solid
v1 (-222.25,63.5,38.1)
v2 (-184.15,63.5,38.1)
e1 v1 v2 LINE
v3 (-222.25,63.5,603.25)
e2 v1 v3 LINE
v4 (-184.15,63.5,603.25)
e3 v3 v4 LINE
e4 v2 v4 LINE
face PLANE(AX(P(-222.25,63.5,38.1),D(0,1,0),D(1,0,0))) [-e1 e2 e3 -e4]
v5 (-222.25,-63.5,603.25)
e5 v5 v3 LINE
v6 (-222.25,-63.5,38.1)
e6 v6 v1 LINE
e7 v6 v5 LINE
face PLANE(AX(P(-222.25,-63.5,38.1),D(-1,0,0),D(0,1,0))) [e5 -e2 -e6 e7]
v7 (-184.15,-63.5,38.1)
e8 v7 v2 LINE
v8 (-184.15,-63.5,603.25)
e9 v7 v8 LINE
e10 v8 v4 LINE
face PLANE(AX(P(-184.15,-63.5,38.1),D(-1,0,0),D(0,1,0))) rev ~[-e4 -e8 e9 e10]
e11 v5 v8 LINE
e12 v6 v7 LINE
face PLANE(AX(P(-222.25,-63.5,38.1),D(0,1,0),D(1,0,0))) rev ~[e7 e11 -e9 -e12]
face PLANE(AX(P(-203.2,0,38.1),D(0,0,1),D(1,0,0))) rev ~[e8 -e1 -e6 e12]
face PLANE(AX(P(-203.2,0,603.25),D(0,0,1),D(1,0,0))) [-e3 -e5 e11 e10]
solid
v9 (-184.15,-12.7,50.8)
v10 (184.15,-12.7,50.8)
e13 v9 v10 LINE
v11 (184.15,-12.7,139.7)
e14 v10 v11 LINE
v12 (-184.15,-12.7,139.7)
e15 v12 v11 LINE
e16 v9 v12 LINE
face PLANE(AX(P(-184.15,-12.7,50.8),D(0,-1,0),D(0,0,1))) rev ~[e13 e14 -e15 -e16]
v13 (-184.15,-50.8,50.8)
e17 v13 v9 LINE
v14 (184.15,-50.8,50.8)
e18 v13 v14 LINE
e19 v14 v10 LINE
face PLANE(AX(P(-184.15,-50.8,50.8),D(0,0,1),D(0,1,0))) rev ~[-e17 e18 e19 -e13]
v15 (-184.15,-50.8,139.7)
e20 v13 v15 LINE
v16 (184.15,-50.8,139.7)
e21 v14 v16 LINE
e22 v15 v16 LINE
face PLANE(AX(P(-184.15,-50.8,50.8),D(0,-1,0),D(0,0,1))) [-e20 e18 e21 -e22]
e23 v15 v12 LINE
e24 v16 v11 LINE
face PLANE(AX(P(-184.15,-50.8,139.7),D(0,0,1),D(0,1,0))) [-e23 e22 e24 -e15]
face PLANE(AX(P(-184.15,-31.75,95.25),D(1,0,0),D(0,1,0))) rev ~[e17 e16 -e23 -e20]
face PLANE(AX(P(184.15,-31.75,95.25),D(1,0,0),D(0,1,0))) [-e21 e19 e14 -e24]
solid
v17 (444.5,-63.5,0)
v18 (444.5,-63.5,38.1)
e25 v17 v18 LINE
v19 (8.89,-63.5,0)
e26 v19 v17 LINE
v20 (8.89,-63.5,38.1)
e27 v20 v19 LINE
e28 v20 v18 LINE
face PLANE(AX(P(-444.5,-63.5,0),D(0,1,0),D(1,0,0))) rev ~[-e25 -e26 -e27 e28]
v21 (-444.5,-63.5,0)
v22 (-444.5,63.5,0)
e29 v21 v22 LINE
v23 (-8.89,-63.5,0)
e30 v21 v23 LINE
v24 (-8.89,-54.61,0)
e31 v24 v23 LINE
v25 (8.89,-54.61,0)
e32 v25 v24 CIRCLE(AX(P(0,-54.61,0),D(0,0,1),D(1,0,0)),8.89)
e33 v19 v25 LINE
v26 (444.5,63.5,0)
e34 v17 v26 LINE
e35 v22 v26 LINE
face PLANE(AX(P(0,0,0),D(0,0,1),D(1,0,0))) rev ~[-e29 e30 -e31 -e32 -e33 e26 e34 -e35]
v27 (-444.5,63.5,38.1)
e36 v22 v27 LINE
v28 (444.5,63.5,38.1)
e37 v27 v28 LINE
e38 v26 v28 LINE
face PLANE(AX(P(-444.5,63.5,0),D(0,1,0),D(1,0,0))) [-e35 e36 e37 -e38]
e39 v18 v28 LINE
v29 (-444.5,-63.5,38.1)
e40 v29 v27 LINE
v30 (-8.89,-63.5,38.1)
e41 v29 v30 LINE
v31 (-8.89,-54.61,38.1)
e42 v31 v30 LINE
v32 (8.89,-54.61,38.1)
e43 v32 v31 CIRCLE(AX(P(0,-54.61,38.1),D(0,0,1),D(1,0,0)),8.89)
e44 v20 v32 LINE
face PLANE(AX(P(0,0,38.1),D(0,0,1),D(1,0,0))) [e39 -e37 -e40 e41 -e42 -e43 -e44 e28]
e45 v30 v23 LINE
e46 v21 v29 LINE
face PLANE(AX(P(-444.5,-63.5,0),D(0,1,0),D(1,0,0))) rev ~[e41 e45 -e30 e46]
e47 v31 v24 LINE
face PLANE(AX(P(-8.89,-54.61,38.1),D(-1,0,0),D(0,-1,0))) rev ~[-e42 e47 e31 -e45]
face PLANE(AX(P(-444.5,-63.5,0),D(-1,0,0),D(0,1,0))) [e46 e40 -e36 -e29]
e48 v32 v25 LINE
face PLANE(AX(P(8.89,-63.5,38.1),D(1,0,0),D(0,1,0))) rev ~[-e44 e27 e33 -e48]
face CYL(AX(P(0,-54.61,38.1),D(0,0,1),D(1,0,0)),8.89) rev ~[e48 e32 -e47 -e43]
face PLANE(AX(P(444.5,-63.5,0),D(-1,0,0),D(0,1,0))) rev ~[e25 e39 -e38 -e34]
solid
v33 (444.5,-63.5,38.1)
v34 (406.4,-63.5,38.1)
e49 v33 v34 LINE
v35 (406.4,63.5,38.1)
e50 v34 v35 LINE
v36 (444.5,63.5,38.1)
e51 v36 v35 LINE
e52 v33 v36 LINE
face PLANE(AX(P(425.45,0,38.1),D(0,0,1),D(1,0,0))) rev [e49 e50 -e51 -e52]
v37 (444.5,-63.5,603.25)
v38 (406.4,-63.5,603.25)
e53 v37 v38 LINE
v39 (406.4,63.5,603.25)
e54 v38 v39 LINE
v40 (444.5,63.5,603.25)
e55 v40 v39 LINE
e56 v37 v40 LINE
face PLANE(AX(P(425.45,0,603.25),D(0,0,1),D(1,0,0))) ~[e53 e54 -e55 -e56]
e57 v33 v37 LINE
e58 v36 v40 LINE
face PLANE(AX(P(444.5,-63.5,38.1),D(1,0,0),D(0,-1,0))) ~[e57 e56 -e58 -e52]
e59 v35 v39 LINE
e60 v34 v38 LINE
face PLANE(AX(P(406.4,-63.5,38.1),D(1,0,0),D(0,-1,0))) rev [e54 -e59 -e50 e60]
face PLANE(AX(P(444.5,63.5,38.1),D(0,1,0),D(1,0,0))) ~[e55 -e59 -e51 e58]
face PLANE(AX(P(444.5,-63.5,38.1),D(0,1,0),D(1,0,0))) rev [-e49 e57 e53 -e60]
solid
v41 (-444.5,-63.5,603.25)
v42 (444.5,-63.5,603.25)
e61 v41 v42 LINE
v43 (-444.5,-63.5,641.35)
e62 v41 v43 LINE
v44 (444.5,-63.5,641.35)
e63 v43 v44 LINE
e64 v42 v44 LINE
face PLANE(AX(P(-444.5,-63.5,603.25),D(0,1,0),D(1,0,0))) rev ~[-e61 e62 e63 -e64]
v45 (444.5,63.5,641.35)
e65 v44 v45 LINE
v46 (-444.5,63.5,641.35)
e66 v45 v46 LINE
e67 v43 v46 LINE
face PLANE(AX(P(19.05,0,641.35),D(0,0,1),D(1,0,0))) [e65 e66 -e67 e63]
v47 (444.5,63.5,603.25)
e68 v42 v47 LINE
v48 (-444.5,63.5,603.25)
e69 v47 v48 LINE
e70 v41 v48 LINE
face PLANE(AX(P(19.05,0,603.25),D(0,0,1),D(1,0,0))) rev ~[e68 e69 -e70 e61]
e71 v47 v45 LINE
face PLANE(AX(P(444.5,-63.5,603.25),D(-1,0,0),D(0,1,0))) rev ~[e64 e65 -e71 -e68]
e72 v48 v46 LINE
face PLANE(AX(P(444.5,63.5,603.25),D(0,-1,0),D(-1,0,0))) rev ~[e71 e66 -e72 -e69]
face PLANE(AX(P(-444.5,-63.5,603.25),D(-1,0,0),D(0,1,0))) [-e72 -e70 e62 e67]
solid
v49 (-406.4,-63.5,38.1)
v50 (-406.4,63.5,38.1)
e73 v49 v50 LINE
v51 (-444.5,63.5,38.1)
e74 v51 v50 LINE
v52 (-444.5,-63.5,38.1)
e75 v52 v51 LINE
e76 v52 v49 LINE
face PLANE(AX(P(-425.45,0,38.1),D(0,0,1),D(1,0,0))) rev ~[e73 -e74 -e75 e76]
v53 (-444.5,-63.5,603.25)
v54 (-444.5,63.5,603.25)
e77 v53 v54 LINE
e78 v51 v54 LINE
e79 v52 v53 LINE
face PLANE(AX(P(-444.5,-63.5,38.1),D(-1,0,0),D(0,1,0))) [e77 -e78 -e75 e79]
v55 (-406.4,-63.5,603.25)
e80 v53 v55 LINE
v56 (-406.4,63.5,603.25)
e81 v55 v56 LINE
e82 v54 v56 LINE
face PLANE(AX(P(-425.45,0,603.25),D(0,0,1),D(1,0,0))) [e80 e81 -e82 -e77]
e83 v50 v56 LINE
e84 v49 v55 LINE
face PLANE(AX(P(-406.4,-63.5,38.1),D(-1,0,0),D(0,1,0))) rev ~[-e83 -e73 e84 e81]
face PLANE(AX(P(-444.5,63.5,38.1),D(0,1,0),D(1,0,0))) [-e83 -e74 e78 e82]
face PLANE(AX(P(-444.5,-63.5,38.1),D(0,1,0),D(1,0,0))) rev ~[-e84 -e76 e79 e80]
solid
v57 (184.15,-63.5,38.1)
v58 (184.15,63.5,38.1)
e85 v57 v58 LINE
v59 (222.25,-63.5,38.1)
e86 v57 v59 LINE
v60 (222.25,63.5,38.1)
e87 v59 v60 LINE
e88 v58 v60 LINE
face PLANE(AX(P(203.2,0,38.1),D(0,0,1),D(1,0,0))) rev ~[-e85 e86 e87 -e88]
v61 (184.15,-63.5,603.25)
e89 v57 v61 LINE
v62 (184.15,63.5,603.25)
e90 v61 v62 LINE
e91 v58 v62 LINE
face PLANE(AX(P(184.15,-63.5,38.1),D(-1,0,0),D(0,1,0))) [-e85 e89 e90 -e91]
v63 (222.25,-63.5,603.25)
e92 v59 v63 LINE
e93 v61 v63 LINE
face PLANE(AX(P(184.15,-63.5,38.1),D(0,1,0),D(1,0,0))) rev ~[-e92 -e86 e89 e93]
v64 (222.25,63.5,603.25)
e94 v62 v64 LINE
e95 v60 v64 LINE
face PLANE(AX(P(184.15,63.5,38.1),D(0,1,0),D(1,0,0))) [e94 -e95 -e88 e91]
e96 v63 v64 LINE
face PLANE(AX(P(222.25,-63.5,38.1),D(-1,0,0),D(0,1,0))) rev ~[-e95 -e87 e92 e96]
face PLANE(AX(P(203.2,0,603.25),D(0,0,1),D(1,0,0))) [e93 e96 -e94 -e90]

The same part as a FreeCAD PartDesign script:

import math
import FreeCAD as App
import Part
import Sketcher

V = App.Vector
Q = App.Units.Quantity


def add_polygon(sketch, points):
    """Adds a closed chain of lines whose ends are joined by coincident constraints."""
    first, n = sketch.GeometryCount, len(points)
    for a, b in zip(points, points[1:] + points[:1]):
        sketch.addGeometry(Part.LineSegment(App.Vector(*a, 0), App.Vector(*b, 0)), False)
    for i in range(n):
        sketch.addConstraint(Sketcher.Constraint("Coincident", first + i, 2, first + (i + 1) % n, 1))

doc = App.newDocument("Part")
body = doc.addObject("PartDesign::Body", "Body")

# Sketch on XY plane
sketch1 = body.newObject("Sketcher::SketchObject", "Sketch")
sketch1.AttachmentSupport = (doc.getObject("XY_Plane"), [""])
sketch1.MapMode = "FlatFace"
add_polygon(sketch1, [(-444, 64), (-444, -64), (444, -64), (444, 64)])  # lines 0-3
sketch1.addConstraint([
    Sketcher.Constraint("Vertical", 0),
    Sketcher.Constraint("Horizontal", 1),
    Sketcher.Constraint("Vertical", 2),
    Sketcher.Constraint("Horizontal", 3),
    Sketcher.Constraint("Symmetric", 0, 2, 2, 2, -1, 1),
    Sketcher.Constraint("DistanceX", 1, 1, 1, 2, Q("35 in")),
    Sketcher.Constraint("DistanceY", 0, 2, 0, 1, Q("5 in")),
])
pad1 = body.newObject("PartDesign::Pad", "Pad")
pad1.Profile = sketch1
pad1.Length = Q("1.5 in")

# Sketch on XY plane
sketch2 = body.newObject("Sketcher::SketchObject", "Sketch001")
sketch2.AttachmentSupport = (doc.getObject("XY_Plane"), [""])
sketch2.MapMode = "FlatFace"
sketch2.AttachmentOffset = App.Placement(V(0, 0, 1.5 * 25.4), App.Rotation())
sketch2.addGeometry([
    Part.LineSegment(V(9, -64, 0), V(9, -55, 0)),
    Part.ArcOfCircle(Part.Circle(V(0, -55, 0), V(0, 0, 1), 9), math.radians(0), math.radians(180)),
    Part.LineSegment(V(-9, -55, 0), V(-9, -64, 0)),
    Part.LineSegment(V(-9, -64, 0), V(9, -64, 0)),
], False)
sketch2.addConstraint([
    Sketcher.Constraint("Tangent", 0, 2, 1, 1),
    Sketcher.Constraint("Tangent", 1, 2, 2, 1),
    Sketcher.Constraint("Coincident", 2, 2, 3, 1),
    Sketcher.Constraint("Coincident", 3, 2, 0, 1),
    Sketcher.Constraint("Vertical", 0),
    Sketcher.Constraint("Vertical", 2),
    Sketcher.Constraint("Horizontal", 3),
    Sketcher.Constraint("PointOnObject", 1, 3, -2),
    Sketcher.Constraint("Radius", 1, Q("0.35 in")),
    Sketcher.Constraint("DistanceY", 0, 1, 0, 2, Q("0.35 in")),
    Sketcher.Constraint("DistanceY", 2, 2, -1, 1, Q("2.5 in")),
])
pocket1 = body.newObject("PartDesign::Pocket", "Pocket")
pocket1.Profile = sketch2
pocket1.Type = "ThroughAll"
body2 = doc.addObject("PartDesign::Body", "Body001")

# Sketch on XY plane
sketch3 = body2.newObject("Sketcher::SketchObject", "Sketch002")
sketch3.AttachmentSupport = (doc.getObject("XY_Plane001"), [""])
sketch3.MapMode = "FlatFace"
sketch3.AttachmentOffset = App.Placement(V(0, 0, 1.5 * 25.4), App.Rotation())
add_polygon(sketch3, [(-444, 64), (-444, -64), (-406, -64), (-406, 64)])  # lines 0-3
sketch3.addConstraint([
    Sketcher.Constraint("Vertical", 0),
    Sketcher.Constraint("Horizontal", 1),
    Sketcher.Constraint("Vertical", 2),
    Sketcher.Constraint("Horizontal", 3),
    Sketcher.Constraint("DistanceY", 0, 2, 0, 1, Q("5 in")),
    Sketcher.Constraint("DistanceX", 1, 1, 1, 2, Q("1.5 in")),
    Sketcher.Constraint("DistanceX", 1, 2, -1, 1, Q("16 in")),
    Sketcher.Constraint("DistanceY", 0, 2, -1, 1, Q("2.5 in")),
])
pad2 = body2.newObject("PartDesign::Pad", "Pad001")
pad2.Profile = sketch3
pad2.Length = Q("22.25 in")
body3 = doc.addObject("PartDesign::Body", "Body002")
doc.recompute()

mirroring = doc.addObject("Part::Mirroring", "Mirroring")
mirroring.Source = body2
mirroring.Base = V(0, 0, 0)
mirroring.Normal = V(1, 0, 0)
body3.BaseFeature = mirroring
doc.recompute()
body4 = doc.addObject("PartDesign::Body", "Body003")

# Sketch on XY plane
sketch4 = body4.newObject("Sketcher::SketchObject", "Sketch003")
sketch4.AttachmentSupport = (doc.getObject("XY_Plane003"), [""])
sketch4.MapMode = "FlatFace"
sketch4.AttachmentOffset = App.Placement(V(0, 0, 23.75 * 25.4), App.Rotation())
add_polygon(sketch4, [(444, -64), (444, 64), (-444, 64), (-444, -64)])  # lines 0-3
sketch4.addConstraint([
    Sketcher.Constraint("Vertical", 0),
    Sketcher.Constraint("Horizontal", 1),
    Sketcher.Constraint("Vertical", 2),
    Sketcher.Constraint("Horizontal", 3),
    Sketcher.Constraint("Symmetric", 0, 2, 2, 2, -1, 1),
    Sketcher.Constraint("DistanceX", 1, 2, 1, 1, Q("35 in")),
    Sketcher.Constraint("DistanceY", 0, 1, 0, 2, Q("5 in")),
])
pad3 = body4.newObject("PartDesign::Pad", "Pad002")
pad3.Profile = sketch4
pad3.Length = Q("1.5 in")
body5 = doc.addObject("PartDesign::Body", "Body004")
body5.AllowCompound = True

# Sketch on XY plane
sketch5 = body5.newObject("Sketcher::SketchObject", "Sketch004")
sketch5.AttachmentSupport = (doc.getObject("XY_Plane004"), [""])
sketch5.MapMode = "FlatFace"
sketch5.AttachmentOffset = App.Placement(V(0, 0, 1.5 * 25.4), App.Rotation())
add_polygon(sketch5, [(-222, 64), (-222, -64), (-184, -64), (-184, 64)])  # lines 0-3
add_polygon(sketch5, [(184, 64), (184, -64), (222, -64), (222, 64)])  # lines 4-7
sketch5.addConstraint([
    Sketcher.Constraint("Vertical", 0),
    Sketcher.Constraint("Horizontal", 1),
    Sketcher.Constraint("Vertical", 2),
    Sketcher.Constraint("Horizontal", 3),
    Sketcher.Constraint("Vertical", 4),
    Sketcher.Constraint("Horizontal", 5),
    Sketcher.Constraint("Vertical", 6),
    Sketcher.Constraint("Horizontal", 7),
    Sketcher.Constraint("Symmetric", 2, 2, 4, 2, -1, 1),
    Sketcher.Constraint("Symmetric", 0, 2, 6, 2, -1, 1),
    Sketcher.Constraint("Horizontal", 1, 2, 4, 2),
    Sketcher.Constraint("DistanceY", 0, 2, 0, 1, Q("5 in")),
    Sketcher.Constraint("DistanceX", 1, 1, 1, 2, Q("1.5 in")),
    Sketcher.Constraint("DistanceX", 0, 2, 4, 2, Q("16 in")),
])
pad4 = body5.newObject("PartDesign::Pad", "Pad003")
pad4.Profile = sketch5
pad4.Length = Q("22.25 in")
body6 = doc.addObject("PartDesign::Body", "Body005")

# Sketch on YZ plane
sketch6 = body6.newObject("Sketcher::SketchObject", "Sketch005")
sketch6.AttachmentSupport = (doc.getObject("YZ_Plane005"), [""])
sketch6.MapMode = "FlatFace"
sketch6.AttachmentOffset = App.Placement(V(0, 0, -7.25 * 25.4), App.Rotation())
add_polygon(sketch6, [(-51, 140), (-51, 51), (-13, 51), (-13, 140)])  # lines 0-3
sketch6.addConstraint([
    Sketcher.Constraint("Vertical", 0),
    Sketcher.Constraint("Horizontal", 1),
    Sketcher.Constraint("Vertical", 2),
    Sketcher.Constraint("Horizontal", 3),
    Sketcher.Constraint("DistanceX", 1, 1, 1, 2, Q("1.5 in")),
    Sketcher.Constraint("DistanceY", 0, 2, 0, 1, Q("3.5 in")),
    Sketcher.Constraint("DistanceX", 0, 2, -1, 1, Q("2 in")),
    Sketcher.Constraint("DistanceY", -1, 1, 0, 2, Q("2 in")),
])
pad5 = body6.newObject("PartDesign::Pad", "Pad004")
pad5.Profile = sketch6
pad5.Length = Q("14.5 in")
mirroring.Visibility = False

doc.recompute()
